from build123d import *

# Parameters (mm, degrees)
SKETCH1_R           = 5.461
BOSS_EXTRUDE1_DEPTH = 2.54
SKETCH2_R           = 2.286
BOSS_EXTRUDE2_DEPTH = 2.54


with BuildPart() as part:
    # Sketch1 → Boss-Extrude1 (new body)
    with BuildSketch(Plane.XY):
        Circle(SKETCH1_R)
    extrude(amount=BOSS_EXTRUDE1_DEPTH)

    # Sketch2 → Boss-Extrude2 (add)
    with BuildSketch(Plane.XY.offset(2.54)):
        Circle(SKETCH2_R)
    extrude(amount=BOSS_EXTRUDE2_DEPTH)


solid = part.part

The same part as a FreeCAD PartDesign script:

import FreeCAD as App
import Part
import Sketcher
from FreeCAD import Vector
Q = App.Units.Quantity

doc = App.newDocument("Part")
body = doc.addObject("PartDesign::Body", "Body")

# Sketch on XY plane
sketch1 = doc.addObject("Sketcher::SketchObject", "Sketch")
body.addObject(sketch1)
sketch1.AttachmentSupport = (doc.XY_Plane, [""])
sketch1.MapMode = "FlatFace"
sketch1.addGeometry(Part.Circle(Vector(0, 0, 0), Vector(0, 0, 1), 5), False)
sketch1.addConstraint([
    Sketcher.Constraint("Coincident", 0, 3, -1, 1),
    Sketcher.Constraint("Diameter", 0, Q("0.43 in")),
])
pad1 = doc.addObject("PartDesign::Pad", "Pad")
body.addObject(pad1)
pad1.Profile = sketch1
pad1.Length = Q("0.1 in")

# Sketch on XY plane
sketch2 = doc.addObject("Sketcher::SketchObject", "Sketch001")
body.addObject(sketch2)
sketch2.AttachmentSupport = (doc.XY_Plane, [""])
sketch2.MapMode = "FlatFace"
sketch2.AttachmentOffset = App.Placement(Vector(0, 0, 0.1 * 25.4), App.Rotation())
sketch2.addGeometry(Part.Circle(Vector(0, 0, 0), Vector(0, 0, 1), 2.3), False)
sketch2.addConstraint([
    Sketcher.Constraint("Coincident", 0, 3, -1, 1),
    Sketcher.Constraint("Diameter", 0, Q("0.18 in")),
])
pad2 = doc.addObject("PartDesign::Pad", "Pad001")
body.addObject(pad2)
pad2.Profile = sketch2
pad2.Length = Q("0.1 in")

doc.recompute()
